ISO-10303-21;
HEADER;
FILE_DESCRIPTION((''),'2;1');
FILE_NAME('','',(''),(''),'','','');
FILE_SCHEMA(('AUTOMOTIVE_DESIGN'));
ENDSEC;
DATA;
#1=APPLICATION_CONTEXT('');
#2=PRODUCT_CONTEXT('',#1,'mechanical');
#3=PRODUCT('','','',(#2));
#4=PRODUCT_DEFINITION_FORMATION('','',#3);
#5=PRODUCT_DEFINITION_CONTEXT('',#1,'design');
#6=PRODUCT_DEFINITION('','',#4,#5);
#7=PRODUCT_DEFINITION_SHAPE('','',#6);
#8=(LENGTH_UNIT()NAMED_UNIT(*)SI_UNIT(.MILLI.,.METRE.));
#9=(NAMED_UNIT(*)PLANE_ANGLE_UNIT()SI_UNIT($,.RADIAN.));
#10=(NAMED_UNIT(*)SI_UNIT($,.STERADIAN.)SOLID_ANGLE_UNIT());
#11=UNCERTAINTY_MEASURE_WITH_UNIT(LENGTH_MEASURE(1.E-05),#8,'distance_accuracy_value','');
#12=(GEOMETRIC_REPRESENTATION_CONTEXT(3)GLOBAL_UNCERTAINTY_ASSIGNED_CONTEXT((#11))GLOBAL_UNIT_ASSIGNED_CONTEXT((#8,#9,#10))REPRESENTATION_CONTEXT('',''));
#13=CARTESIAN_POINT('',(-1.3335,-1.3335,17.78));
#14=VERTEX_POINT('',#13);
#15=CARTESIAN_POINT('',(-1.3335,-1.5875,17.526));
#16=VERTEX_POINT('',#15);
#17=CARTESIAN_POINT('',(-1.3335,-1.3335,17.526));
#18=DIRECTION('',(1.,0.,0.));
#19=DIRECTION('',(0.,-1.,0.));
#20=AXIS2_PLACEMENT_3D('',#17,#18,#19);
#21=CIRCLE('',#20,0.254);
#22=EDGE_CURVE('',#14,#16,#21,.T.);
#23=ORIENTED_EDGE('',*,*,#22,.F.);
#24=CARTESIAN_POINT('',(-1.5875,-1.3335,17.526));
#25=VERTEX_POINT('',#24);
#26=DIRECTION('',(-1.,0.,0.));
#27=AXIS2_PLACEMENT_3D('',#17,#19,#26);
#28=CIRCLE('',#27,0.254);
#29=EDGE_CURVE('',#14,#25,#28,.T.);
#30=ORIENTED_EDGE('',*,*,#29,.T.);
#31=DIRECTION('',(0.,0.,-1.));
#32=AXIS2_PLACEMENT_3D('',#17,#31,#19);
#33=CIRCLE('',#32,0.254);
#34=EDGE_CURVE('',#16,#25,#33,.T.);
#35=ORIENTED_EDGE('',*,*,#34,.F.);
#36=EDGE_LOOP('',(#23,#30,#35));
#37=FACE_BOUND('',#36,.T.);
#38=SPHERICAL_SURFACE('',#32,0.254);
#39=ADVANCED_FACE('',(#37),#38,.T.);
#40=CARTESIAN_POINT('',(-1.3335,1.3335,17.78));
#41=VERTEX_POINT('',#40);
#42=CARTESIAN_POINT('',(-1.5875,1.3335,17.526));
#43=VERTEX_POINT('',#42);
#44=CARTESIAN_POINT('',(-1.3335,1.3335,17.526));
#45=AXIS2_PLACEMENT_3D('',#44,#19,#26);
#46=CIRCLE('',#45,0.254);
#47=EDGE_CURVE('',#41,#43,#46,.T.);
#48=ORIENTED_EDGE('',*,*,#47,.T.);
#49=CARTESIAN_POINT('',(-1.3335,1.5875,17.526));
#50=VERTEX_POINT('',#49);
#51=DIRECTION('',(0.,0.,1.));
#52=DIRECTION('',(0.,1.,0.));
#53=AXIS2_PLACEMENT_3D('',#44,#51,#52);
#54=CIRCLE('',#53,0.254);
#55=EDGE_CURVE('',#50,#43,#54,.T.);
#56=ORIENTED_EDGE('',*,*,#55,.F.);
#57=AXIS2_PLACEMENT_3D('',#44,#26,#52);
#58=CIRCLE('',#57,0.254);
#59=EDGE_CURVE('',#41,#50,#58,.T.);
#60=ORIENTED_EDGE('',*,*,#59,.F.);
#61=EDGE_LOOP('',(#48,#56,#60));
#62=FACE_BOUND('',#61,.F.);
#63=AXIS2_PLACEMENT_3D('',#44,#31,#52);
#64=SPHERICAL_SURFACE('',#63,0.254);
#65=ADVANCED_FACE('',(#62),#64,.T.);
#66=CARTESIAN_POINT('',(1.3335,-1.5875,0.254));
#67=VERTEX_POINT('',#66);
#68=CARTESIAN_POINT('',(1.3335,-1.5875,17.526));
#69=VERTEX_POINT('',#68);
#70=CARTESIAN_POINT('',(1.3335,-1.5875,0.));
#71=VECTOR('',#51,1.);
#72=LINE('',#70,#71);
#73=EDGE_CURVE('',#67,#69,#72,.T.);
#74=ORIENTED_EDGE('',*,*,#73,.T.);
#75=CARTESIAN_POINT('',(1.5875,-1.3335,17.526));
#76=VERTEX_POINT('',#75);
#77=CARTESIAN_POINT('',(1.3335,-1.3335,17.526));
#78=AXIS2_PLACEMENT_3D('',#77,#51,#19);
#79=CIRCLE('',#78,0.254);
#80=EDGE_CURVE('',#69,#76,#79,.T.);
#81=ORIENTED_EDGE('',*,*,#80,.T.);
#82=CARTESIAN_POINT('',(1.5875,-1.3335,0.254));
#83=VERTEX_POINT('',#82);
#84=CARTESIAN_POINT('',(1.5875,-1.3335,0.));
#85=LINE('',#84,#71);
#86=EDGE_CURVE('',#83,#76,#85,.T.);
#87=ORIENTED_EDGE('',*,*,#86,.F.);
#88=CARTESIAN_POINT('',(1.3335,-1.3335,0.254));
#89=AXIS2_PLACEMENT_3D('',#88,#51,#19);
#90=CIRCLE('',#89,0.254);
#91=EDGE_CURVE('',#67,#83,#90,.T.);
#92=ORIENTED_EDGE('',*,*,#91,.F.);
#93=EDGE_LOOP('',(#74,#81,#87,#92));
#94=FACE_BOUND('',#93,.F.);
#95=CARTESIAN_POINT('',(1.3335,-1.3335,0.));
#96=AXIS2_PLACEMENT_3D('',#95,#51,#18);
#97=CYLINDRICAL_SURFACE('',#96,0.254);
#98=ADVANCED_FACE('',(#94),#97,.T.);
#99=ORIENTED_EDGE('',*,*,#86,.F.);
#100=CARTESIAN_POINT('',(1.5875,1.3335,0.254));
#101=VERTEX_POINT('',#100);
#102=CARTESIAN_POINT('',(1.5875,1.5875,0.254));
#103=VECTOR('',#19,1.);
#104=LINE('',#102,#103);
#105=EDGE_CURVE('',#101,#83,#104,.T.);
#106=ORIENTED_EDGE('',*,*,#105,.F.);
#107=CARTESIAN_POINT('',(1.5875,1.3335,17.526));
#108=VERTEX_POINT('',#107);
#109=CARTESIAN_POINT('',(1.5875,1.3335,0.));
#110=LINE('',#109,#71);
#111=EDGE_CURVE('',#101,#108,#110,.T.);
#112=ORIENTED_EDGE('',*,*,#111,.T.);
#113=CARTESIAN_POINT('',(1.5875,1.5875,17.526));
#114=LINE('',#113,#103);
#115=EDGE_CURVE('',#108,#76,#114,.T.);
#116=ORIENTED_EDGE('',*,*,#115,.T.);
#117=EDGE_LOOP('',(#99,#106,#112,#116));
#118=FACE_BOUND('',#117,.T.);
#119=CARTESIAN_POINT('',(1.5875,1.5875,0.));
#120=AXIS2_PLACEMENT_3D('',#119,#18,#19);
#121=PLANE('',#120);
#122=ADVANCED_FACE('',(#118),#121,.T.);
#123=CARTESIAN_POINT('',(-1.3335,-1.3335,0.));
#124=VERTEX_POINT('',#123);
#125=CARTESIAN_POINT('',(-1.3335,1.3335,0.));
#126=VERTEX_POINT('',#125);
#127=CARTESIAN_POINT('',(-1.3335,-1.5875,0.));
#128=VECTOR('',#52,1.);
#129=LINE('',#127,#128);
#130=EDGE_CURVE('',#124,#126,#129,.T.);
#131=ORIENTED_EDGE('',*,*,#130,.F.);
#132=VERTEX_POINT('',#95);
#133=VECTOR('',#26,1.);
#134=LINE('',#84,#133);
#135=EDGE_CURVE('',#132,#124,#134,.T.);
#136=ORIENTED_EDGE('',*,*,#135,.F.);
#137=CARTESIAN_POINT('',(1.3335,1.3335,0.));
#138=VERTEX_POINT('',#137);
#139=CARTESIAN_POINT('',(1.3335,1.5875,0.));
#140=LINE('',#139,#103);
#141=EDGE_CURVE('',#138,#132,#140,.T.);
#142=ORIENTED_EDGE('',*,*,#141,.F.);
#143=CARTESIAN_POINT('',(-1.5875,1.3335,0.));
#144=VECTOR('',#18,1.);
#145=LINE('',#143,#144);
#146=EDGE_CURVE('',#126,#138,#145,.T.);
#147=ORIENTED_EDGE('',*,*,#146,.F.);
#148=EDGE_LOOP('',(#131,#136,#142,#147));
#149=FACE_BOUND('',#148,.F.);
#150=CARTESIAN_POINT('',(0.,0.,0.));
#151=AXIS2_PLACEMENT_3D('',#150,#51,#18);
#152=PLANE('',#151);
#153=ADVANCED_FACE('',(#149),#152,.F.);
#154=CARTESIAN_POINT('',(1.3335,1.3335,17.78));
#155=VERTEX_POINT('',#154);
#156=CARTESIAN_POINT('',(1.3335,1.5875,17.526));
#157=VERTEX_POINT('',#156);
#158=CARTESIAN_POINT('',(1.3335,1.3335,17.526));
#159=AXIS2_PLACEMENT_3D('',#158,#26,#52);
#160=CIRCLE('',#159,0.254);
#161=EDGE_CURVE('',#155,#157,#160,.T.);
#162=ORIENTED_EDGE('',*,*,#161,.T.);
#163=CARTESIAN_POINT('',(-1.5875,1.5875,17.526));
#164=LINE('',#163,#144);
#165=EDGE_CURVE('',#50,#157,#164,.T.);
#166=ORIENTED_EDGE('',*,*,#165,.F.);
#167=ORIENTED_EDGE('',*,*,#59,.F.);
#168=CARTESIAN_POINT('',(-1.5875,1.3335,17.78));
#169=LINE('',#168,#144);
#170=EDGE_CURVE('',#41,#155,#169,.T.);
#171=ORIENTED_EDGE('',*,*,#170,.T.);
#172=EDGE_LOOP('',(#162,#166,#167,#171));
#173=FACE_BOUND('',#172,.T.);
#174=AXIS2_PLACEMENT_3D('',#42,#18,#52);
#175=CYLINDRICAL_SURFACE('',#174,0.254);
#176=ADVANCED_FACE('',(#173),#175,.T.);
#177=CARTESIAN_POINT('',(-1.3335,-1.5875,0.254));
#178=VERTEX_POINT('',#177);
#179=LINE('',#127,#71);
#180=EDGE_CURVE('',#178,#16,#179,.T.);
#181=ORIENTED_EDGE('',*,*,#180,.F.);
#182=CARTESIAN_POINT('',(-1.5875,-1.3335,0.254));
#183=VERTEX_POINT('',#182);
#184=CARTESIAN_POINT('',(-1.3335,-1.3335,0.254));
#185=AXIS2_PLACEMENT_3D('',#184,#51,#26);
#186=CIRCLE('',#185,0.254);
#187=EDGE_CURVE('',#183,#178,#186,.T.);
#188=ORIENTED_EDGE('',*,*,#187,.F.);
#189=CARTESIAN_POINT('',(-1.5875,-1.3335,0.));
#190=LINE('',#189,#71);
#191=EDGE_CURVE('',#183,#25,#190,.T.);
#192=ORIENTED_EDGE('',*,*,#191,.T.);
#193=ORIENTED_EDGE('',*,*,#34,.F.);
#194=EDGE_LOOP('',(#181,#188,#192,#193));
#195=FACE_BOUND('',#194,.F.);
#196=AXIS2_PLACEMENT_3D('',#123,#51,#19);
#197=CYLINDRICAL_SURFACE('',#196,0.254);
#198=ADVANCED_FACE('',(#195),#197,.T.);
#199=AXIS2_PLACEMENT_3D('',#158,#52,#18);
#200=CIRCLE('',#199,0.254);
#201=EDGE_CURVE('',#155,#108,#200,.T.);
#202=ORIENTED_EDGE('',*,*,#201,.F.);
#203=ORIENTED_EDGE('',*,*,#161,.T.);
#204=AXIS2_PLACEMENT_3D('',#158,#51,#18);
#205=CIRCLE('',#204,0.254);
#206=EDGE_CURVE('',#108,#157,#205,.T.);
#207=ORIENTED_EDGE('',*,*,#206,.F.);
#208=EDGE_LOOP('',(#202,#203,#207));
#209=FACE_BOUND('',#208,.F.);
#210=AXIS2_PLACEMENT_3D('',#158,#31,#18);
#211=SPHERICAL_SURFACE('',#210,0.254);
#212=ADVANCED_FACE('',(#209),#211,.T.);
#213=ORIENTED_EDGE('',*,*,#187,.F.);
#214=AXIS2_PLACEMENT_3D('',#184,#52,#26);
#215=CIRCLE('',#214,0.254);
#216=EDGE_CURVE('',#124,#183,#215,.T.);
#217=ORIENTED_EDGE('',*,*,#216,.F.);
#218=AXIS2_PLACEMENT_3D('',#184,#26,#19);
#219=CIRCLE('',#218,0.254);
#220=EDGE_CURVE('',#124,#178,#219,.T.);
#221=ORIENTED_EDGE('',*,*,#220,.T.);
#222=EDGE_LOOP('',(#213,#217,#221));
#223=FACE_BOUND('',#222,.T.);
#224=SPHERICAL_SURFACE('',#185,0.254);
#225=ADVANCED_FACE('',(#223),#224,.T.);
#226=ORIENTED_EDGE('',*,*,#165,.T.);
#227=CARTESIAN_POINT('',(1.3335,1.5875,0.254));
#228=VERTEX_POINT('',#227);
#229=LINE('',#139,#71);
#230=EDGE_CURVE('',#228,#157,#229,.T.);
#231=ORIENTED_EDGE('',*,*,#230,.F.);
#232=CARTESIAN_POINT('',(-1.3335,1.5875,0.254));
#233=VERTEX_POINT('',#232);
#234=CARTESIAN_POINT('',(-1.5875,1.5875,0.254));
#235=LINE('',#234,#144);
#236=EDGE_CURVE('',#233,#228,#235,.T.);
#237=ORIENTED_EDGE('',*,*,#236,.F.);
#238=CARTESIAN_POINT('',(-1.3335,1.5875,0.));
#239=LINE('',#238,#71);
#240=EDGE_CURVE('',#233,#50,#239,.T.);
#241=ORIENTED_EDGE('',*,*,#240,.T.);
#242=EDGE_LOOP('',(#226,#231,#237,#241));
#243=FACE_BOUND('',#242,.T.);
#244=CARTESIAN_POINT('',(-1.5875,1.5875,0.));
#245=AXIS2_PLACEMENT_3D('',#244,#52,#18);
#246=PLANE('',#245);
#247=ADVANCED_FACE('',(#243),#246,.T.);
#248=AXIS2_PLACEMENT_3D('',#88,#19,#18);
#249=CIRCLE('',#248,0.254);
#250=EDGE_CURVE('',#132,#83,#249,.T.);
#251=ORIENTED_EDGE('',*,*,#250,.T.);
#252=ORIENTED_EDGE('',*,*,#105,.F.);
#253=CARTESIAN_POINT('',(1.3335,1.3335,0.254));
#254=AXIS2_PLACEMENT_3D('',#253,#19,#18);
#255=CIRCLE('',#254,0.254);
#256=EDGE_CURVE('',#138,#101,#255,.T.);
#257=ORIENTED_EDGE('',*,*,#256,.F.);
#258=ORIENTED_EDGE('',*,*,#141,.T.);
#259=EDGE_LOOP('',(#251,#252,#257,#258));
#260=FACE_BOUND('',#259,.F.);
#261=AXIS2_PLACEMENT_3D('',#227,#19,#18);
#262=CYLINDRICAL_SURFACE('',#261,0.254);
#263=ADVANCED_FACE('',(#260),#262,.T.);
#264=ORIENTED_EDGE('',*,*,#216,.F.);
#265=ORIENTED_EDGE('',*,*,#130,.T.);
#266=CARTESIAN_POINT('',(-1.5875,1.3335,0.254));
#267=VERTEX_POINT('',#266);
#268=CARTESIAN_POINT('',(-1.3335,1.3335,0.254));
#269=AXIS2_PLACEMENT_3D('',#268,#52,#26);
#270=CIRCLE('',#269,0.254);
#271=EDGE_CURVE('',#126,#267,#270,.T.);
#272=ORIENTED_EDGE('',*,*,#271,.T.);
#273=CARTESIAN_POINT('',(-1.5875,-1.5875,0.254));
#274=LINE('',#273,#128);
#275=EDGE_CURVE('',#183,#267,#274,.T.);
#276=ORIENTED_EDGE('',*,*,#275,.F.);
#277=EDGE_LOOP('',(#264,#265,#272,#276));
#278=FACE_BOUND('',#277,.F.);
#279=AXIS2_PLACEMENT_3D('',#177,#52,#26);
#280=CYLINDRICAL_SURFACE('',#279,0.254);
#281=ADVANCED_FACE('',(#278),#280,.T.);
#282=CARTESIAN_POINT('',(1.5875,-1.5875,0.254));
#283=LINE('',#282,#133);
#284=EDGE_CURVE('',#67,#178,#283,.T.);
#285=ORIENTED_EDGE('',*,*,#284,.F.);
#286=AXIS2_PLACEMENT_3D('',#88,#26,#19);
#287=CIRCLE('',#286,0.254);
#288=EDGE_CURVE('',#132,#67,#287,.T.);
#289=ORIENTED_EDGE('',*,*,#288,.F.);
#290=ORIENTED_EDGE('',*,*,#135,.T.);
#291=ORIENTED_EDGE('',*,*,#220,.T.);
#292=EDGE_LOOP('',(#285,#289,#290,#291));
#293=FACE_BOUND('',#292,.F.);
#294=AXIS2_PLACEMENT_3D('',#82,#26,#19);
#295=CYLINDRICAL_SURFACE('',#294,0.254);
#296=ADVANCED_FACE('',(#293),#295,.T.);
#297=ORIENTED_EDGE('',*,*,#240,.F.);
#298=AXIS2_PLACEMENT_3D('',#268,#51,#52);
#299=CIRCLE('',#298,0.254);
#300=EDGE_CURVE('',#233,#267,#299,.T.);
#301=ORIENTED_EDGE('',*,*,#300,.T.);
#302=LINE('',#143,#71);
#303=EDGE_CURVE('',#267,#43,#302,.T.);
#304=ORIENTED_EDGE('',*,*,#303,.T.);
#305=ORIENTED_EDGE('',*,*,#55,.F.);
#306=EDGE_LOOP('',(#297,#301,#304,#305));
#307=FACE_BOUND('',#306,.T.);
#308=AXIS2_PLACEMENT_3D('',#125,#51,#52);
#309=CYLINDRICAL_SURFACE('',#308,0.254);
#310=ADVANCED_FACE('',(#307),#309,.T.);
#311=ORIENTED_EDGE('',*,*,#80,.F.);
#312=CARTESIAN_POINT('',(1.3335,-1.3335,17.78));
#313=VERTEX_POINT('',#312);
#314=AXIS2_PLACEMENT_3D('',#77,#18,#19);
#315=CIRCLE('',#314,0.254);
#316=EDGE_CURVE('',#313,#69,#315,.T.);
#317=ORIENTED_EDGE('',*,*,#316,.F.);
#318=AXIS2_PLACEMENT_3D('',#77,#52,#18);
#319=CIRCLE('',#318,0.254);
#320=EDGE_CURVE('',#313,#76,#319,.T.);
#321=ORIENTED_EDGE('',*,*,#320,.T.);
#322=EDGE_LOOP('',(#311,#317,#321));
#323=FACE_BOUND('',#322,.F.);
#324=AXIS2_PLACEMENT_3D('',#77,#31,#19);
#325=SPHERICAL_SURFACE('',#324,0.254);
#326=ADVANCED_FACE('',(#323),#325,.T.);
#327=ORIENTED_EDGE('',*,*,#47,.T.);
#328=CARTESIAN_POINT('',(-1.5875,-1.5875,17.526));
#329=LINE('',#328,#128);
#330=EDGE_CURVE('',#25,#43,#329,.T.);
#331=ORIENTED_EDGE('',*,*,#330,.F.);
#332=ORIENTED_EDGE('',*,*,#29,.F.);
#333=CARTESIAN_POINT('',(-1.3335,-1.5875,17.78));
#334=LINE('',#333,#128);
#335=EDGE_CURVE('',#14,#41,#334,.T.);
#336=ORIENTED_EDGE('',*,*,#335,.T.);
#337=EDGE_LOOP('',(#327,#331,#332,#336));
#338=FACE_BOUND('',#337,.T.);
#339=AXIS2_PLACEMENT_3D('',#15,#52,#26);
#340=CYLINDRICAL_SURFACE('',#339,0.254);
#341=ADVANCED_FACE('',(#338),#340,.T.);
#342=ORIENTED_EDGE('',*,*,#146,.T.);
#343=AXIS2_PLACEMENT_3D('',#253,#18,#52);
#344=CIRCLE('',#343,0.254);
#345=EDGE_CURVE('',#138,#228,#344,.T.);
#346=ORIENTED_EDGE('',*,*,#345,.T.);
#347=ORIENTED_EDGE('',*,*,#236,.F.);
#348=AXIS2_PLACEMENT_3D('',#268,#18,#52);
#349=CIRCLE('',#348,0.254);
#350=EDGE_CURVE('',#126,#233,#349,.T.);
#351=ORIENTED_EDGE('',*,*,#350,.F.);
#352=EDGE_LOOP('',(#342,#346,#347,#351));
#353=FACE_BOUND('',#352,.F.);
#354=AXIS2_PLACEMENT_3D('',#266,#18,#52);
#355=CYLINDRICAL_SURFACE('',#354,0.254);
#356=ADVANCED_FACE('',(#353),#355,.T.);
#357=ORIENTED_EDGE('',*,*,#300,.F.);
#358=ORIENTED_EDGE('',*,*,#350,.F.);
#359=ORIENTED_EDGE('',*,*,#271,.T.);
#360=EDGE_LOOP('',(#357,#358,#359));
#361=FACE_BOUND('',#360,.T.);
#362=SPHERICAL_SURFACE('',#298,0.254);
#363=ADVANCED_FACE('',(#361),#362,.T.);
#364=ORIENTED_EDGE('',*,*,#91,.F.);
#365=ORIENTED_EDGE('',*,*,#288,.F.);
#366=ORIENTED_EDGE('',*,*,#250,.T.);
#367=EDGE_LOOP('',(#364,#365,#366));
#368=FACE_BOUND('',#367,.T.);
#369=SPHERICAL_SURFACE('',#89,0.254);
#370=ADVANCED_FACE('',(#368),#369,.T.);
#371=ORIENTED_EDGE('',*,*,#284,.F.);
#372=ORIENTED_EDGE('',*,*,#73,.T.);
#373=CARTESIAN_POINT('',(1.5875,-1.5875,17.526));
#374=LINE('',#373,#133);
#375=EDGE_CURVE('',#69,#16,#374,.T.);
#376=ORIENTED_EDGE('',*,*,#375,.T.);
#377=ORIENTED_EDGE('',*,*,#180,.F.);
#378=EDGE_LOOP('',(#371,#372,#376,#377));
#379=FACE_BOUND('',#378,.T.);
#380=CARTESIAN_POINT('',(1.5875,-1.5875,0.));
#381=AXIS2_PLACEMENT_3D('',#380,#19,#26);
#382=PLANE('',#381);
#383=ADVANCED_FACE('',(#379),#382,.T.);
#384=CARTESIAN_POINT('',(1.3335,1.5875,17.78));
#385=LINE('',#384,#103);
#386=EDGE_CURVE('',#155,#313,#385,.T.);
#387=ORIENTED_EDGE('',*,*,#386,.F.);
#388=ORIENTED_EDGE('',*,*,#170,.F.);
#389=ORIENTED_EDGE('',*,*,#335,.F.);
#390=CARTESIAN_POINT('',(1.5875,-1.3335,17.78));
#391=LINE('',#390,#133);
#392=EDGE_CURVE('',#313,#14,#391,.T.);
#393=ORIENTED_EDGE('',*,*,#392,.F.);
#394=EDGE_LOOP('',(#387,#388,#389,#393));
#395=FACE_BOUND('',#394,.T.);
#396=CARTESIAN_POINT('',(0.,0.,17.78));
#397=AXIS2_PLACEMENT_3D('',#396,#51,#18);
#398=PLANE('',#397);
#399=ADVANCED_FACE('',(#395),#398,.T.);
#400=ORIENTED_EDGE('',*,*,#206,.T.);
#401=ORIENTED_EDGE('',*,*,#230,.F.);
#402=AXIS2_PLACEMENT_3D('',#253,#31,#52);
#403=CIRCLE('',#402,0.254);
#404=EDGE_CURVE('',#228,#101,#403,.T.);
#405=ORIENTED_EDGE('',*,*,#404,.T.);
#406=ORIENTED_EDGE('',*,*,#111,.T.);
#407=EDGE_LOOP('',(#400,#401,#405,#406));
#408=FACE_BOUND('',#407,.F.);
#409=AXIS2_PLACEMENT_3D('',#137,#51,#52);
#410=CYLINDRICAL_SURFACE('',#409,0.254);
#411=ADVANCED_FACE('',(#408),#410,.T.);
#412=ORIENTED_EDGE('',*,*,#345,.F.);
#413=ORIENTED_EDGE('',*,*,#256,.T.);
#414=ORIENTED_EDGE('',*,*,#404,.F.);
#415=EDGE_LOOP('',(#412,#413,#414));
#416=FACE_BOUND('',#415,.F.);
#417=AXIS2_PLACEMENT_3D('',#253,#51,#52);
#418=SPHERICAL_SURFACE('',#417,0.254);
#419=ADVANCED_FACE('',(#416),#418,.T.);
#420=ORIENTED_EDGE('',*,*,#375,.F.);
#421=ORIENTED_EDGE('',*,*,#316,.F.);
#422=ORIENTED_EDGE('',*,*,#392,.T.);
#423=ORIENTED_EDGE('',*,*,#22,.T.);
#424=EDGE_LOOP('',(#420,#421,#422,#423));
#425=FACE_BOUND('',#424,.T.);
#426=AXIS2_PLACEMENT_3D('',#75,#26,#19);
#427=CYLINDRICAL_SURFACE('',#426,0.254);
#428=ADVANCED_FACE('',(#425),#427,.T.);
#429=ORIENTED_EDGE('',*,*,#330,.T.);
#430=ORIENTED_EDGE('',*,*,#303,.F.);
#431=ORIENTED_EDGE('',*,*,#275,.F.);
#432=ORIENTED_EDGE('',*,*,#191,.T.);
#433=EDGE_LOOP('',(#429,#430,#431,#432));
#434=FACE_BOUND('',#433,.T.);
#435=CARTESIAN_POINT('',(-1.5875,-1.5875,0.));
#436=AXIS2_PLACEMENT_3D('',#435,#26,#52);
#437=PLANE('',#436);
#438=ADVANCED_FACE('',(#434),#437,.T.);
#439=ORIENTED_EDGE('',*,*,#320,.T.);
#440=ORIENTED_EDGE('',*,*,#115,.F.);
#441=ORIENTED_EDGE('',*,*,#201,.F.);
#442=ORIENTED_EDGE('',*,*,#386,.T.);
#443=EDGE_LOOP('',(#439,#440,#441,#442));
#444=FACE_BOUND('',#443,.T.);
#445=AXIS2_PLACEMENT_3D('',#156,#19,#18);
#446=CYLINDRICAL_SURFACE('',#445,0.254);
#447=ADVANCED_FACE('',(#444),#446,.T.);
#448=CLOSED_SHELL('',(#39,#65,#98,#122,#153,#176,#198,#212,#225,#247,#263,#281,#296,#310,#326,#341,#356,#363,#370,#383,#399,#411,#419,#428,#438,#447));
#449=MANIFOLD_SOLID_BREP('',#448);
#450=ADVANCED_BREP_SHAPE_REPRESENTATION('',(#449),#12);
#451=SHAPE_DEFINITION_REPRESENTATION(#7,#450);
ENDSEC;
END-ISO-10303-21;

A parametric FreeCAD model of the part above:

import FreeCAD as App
import Part
import Sketcher

V = App.Vector
Q = App.Units.Quantity

doc = App.newDocument("Part")
body = doc.addObject("PartDesign::Body", "Body")

# Sketch on XY plane
sketch1 = body.newObject("Sketcher::SketchObject", "Sketch")
sketch1.AttachmentSupport = (doc.getObject("XY_Plane"), [""])
sketch1.MapMode = "FlatFace"
sketch1.addGeometry([
    Part.LineSegment(V(1.6, 1.6, 0), V(-1.6, 1.6, 0)),
    Part.LineSegment(V(-1.6, 1.6, 0), V(-1.6, -1.6, 0)),
    Part.LineSegment(V(-1.6, -1.6, 0), V(1.6, -1.6, 0)),
    Part.LineSegment(V(1.6, -1.6, 0), V(1.6, 1.6, 0)),
], False)
sketch1.addConstraint([
    Sketcher.Constraint("Coincident", 0, 2, 1, 1),
    Sketcher.Constraint("Coincident", 1, 2, 2, 1),
    Sketcher.Constraint("Coincident", 2, 2, 3, 1),
    Sketcher.Constraint("Coincident", 3, 2, 0, 1),
    Sketcher.Constraint("Horizontal", 0),
    Sketcher.Constraint("Vertical", 1),
    Sketcher.Constraint("Horizontal", 2),
    Sketcher.Constraint("Vertical", 3),
    Sketcher.Constraint("Symmetric", 0, 2, 2, 2, -1, 1),
    Sketcher.Constraint("Equal", 2, 1),
    Sketcher.Constraint("DistanceX", 0, 2, 0, 1, Q("0.125 in")),
])
pad1 = body.newObject("PartDesign::Pad", "Pad")
pad1.Profile = sketch1
pad1.Length = Q("0.7 in")
doc.recompute()

fillet = body.newObject("PartDesign::Fillet", "Fillet")
fillet.Base = (pad1, ["Edge1"])
fillet.UseAllEdges = True
fillet.Radius = Q("0.01 in")

doc.recompute()
